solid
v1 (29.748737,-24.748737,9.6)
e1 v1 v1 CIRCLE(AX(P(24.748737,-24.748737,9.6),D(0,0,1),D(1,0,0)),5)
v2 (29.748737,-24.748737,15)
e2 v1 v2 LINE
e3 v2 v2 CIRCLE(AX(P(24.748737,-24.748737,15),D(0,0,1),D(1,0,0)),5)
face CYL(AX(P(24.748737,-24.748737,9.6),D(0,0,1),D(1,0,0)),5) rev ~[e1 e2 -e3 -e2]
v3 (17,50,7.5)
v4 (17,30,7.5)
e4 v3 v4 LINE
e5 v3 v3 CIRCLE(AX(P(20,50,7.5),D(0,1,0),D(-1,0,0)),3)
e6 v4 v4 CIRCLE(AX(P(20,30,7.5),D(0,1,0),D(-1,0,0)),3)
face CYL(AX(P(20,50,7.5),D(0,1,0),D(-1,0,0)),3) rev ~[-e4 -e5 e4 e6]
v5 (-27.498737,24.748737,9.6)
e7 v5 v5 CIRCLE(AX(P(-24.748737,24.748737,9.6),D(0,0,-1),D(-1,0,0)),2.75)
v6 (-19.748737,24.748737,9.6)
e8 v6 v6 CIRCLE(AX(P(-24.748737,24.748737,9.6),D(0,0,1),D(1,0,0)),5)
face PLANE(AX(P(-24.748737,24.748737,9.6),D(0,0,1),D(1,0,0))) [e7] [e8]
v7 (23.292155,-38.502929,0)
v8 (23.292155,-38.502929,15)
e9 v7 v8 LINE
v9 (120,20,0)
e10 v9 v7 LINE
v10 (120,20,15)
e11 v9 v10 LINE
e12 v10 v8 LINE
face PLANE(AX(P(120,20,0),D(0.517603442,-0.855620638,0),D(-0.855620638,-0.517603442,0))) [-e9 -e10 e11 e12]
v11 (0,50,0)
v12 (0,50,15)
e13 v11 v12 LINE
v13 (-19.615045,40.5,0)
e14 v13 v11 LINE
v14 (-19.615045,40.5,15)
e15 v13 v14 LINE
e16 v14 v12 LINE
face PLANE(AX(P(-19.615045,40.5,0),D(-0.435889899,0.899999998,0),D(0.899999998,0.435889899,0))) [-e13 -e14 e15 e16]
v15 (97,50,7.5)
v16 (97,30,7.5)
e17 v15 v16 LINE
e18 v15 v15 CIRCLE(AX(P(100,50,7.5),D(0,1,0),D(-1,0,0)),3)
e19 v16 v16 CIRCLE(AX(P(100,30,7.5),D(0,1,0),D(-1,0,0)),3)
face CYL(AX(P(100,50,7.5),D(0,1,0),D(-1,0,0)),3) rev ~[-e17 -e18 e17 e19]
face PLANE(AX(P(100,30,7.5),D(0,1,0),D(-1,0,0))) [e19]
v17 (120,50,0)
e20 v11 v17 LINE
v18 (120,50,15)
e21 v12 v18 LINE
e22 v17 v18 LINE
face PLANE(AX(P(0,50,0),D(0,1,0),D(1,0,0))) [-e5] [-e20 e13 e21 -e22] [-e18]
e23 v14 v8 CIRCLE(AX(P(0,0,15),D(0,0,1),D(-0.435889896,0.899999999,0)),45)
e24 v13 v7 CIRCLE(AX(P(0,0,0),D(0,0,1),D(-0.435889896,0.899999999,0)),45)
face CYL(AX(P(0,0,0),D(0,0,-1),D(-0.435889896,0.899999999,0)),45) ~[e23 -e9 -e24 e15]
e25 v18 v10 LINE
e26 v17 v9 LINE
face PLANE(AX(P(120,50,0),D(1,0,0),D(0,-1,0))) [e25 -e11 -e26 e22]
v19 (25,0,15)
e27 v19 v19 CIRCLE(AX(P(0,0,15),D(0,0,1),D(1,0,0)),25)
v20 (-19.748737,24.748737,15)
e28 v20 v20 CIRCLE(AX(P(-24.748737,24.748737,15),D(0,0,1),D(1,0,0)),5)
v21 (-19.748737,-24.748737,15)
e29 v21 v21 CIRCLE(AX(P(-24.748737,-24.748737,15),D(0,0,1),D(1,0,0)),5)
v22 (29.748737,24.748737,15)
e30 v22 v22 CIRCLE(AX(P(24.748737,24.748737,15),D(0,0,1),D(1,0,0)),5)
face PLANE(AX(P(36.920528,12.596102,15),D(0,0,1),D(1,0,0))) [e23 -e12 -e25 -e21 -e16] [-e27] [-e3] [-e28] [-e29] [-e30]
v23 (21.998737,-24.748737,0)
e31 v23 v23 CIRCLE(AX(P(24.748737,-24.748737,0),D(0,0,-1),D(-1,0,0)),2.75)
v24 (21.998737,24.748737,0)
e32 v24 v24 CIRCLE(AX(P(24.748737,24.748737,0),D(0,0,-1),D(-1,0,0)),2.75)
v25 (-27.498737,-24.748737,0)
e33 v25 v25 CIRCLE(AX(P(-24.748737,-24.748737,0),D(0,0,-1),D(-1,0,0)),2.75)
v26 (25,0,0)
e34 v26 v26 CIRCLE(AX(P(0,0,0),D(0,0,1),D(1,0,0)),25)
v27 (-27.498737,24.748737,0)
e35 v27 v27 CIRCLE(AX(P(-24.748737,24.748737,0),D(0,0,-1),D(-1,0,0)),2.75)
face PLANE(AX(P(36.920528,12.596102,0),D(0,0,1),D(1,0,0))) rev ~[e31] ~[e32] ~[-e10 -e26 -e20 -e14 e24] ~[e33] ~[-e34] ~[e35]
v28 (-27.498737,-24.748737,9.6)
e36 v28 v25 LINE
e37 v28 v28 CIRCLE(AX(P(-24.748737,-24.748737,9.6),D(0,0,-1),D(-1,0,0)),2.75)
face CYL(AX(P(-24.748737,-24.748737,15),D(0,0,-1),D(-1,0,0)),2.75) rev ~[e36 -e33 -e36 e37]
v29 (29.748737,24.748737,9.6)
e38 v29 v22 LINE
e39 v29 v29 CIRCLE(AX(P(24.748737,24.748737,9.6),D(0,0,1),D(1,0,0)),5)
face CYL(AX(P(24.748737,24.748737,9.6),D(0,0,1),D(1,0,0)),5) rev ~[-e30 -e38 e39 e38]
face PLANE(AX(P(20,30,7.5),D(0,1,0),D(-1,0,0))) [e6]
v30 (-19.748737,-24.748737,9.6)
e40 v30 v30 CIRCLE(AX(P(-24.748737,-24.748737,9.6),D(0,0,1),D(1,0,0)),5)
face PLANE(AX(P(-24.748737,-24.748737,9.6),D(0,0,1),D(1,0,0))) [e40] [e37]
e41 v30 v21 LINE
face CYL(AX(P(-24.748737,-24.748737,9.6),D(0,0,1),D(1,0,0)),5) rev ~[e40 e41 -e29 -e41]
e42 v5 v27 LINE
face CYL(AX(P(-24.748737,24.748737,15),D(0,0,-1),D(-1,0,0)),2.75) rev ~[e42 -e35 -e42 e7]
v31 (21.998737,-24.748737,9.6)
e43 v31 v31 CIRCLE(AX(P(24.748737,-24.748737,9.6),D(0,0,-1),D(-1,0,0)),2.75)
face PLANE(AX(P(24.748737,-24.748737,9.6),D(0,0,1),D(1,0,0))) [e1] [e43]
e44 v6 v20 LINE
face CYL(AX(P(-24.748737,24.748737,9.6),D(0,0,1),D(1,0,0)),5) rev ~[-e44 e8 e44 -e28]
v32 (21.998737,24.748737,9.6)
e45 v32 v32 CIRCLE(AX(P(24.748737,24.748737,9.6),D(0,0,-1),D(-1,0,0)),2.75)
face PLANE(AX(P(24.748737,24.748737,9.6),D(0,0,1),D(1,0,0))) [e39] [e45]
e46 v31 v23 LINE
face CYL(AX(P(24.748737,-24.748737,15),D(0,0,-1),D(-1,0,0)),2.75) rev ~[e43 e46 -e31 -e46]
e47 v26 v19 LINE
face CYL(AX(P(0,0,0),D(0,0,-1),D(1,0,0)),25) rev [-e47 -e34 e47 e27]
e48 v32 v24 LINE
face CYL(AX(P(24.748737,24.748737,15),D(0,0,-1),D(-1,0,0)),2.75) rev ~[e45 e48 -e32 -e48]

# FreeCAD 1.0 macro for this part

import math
import FreeCAD as App
import Part
import Sketcher

V = App.Vector

doc = App.newDocument("Part")
params = doc.addObject("Spreadsheet::Sheet", "Params")
for row, (alias, value) in enumerate([
    ("sketch1_diameter", "50 mm"),
    ("sketch1_radius", "45 mm"),
    ("sketch1_width", "120 mm"),
    ("sketch1_height", "30 mm"),
    ("pad1_length", "15 mm"),
    ("sketch2_diameter", "5.5 mm"),
    ("hole_diameter", "5.5 mm"),
    ("hole_depth", "25 mm"),
    ("hole_cbore_diameter", "10 mm"),
    ("hole_cbore_depth", "5.4 mm"),
    ("sketch3_diameter", "6 mm"),
    ("pocket1_length", "20 mm"),
], start=1):
    params.set(f"A{row}", alias)
    params.set(f"B{row}", "=" + value)
    params.setAlias(f"B{row}", alias)

body = doc.addObject("PartDesign::Body", "Body")

# Sketch on XY plane
sketch1 = body.newObject("Sketcher::SketchObject", "Sketch")
sketch1.AttachmentSupport = (doc.getObject("XY_Plane"), [""])
sketch1.MapMode = "FlatFace"
sketch1.addGeometry(Part.ArcOfCircle(Part.Circle(V(0, 0, 0), V(0, 0, 1), 45), math.radians(115.841933), math.radians(301.171632)), False)
sketch1.addGeometry(Part.LineSegment(V(23.292155, -38.502929, 0), V(120, 20, 0)), False)
sketch1.addGeometry(Part.LineSegment(V(120, 20, 0), V(120, 50, 0)), False)
sketch1.addGeometry(Part.LineSegment(V(120, 50, 0), V(0, 50, 0)), False)
sketch1.addGeometry(Part.LineSegment(V(0, 50, 0), V(-19.615045, 40.5, 0)), False)
sketch1.addGeometry(Part.Circle(V(0, 0, 0), V(0, 0, 1), 25), False)
sketch1.addConstraint(Sketcher.Constraint("Tangent", 0, 2, 1, 1))
sketch1.addConstraint(Sketcher.Constraint("Coincident", 1, 2, 2, 1))
sketch1.addConstraint(Sketcher.Constraint("Coincident", 2, 2, 3, 1))
sketch1.addConstraint(Sketcher.Constraint("Coincident", 3, 2, 4, 1))
sketch1.addConstraint(Sketcher.Constraint("Tangent", 4, 2, 0, 1))
sketch1.addConstraint(Sketcher.Constraint("Vertical", 2))
sketch1.addConstraint(Sketcher.Constraint("Horizontal", 3))
sketch1.addConstraint(Sketcher.Constraint("Coincident", 0, 3, -1, 1))
sketch1.addConstraint(Sketcher.Constraint("Coincident", 5, 3, -1, 1))
sketch1.addConstraint(Sketcher.Constraint("PointOnObject", 3, 2, -2))
sketch1.addConstraint(Sketcher.Constraint("Diameter", 5, 50.0))
sketch1.addConstraint(Sketcher.Constraint("Radius", 0, 45.0))
sketch1.addConstraint(Sketcher.Constraint("DistanceX", 3, 2, 3, 1, 120.0))
sketch1.addConstraint(Sketcher.Constraint("DistanceY", 2, 1, 2, 2, 30.0))
sketch1.addConstraint(Sketcher.Constraint("DistanceY", -1, 1, 1, 2, 20.0))
sketch1.setExpression("Constraints[10]", "Params.sketch1_diameter")
sketch1.setExpression("Constraints[11]", "Params.sketch1_radius")
sketch1.setExpression("Constraints[12]", "Params.sketch1_width")
sketch1.setExpression("Constraints[13]", "Params.sketch1_height")
pad1 = body.newObject("PartDesign::Pad", "Pad")
pad1.Profile = sketch1
pad1.setExpression("Length", "Params.pad1_length")

# Sketch on XY plane
sketch2 = body.newObject("Sketcher::SketchObject", "Sketch001")
sketch2.AttachmentSupport = (doc.getObject("XY_Plane"), [""])
sketch2.MapMode = "FlatFace"
sketch2.AttachmentOffset = App.Placement(V(0, 0, 15), App.Rotation())
sketch2.addGeometry(Part.Circle(V(24.748737, 24.748737, 0), V(0, 0, 1), 2.75), False)
sketch2.addGeometry(Part.Circle(V(24.748737, -24.748737, 0), V(0, 0, 1), 2.75), False)
sketch2.addGeometry(Part.Circle(V(-24.748737, -24.748737, 0), V(0, 0, 1), 2.75), False)
sketch2.addGeometry(Part.Circle(V(-24.748737, 24.748737, 0), V(0, 0, 1), 2.75), False)
sketch2.addConstraint(Sketcher.Constraint("Equal", 0, 1))
sketch2.addConstraint(Sketcher.Constraint("Equal", 1, 2))
sketch2.addConstraint(Sketcher.Constraint("Equal", 2, 3))
sketch2.addConstraint(Sketcher.Constraint("Symmetric", 0, 3, 2, 3, -1, 1))
sketch2.addConstraint(Sketcher.Constraint("Symmetric", 1, 3, 3, 3, -1, 1))
sketch2.addConstraint(Sketcher.Constraint("Symmetric", 1, 3, 2, 3, -2))
sketch2.addConstraint(Sketcher.Constraint("Diameter", 0, 5.5))
sketch2.addConstraint(Sketcher.Constraint("DistanceX", -1, 1, 0, 3, 24.748737))
sketch2.addConstraint(Sketcher.Constraint("DistanceY", -1, 1, 0, 3, 24.748737))
sketch2.setExpression("Constraints[6]", "Params.sketch2_diameter")
doc.recompute()
hole = body.newObject("PartDesign::Hole", "Hole")
hole.Profile = sketch2
hole.ThreadType = "None"
hole.setExpression("Diameter", "Params.hole_diameter")
hole.DepthType = "Dimension"
hole.setExpression("Depth", "Params.hole_depth")
hole.DrillPoint = "Flat"
hole.HoleCutType = "Counterbore"
hole.setExpression("HoleCutDiameter", "Params.hole_cbore_diameter")
hole.setExpression("HoleCutDepth", "Params.hole_cbore_depth")

# Sketch on XZ plane
sketch3 = body.newObject("Sketcher::SketchObject", "Sketch002")
sketch3.AttachmentSupport = (doc.getObject("XZ_Plane"), [""])
sketch3.MapMode = "FlatFace"
sketch3.AttachmentOffset = App.Placement(V(0, 0, -50), App.Rotation())
sketch3.addGeometry(Part.Circle(V(100, 7.5, 0), V(0, 0, 1), 3), False)
sketch3.addGeometry(Part.Circle(V(20, 7.5, 0), V(0, 0, 1), 3), False)
sketch3.addConstraint(Sketcher.Constraint("Equal", 0, 1))
sketch3.addConstraint(Sketcher.Constraint("Horizontal", 0, 3, 1, 3))
sketch3.addConstraint(Sketcher.Constraint("Diameter", 0, 6.0))
sketch3.addConstraint(Sketcher.Constraint("DistanceX", -1, 1, 0, 3, 100.0))
sketch3.addConstraint(Sketcher.Constraint("DistanceX", -1, 1, 1, 3, 20.0))
sketch3.addConstraint(Sketcher.Constraint("DistanceY", -1, 1, 0, 3, 7.5))
sketch3.setExpression("Constraints[2]", "Params.sketch3_diameter")
pocket1 = body.newObject("PartDesign::Pocket", "Pocket")
pocket1.Profile = sketch3
pocket1.setExpression("Length", "Params.pocket1_length")
pocket1.Reversed = True

doc.recompute()
